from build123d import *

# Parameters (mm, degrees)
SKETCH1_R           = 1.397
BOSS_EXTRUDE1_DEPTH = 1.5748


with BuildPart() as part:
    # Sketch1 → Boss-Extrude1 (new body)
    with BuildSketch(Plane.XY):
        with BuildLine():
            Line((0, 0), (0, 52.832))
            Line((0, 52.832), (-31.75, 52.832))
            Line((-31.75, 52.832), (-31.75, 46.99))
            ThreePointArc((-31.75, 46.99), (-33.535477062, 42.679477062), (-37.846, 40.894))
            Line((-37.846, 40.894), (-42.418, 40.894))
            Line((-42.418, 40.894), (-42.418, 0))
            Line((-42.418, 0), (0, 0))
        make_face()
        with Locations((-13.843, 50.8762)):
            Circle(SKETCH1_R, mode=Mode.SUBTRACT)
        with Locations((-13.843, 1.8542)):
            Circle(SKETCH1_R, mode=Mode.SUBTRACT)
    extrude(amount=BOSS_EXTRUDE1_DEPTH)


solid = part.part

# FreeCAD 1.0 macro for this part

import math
import FreeCAD as App
import Part
import Sketcher

V = App.Vector
Q = App.Units.Quantity

doc = App.newDocument("Part")
body = doc.addObject("PartDesign::Body", "Body")

# Sketch on XY plane
sketch1 = doc.addObject("Sketcher::SketchObject", "Sketch")
body.addObject(sketch1)
sketch1.AttachmentSupport = (doc.XY_Plane, [""])
sketch1.MapMode = "FlatFace"
sketch1.addGeometry([
    Part.LineSegment(V(0, 0, 0), V(0, 52.832, 0)),  # 0
    Part.LineSegment(V(0, 52.832, 0), V(-31.75, 52.832, 0)),  # 1
    Part.LineSegment(V(-31.75, 52.832, 0), V(-31.75, 46.99, 0)),  # 2
    Part.ArcOfCircle(Part.Circle(V(-37.846, 46.99, 0), V(0, 0, 1), 6.096), math.radians(-90), math.radians(0)),  # 3
    Part.LineSegment(V(-37.846, 40.894, 0), V(-42.418, 40.894, 0)),  # 4
    Part.LineSegment(V(-42.418, 40.894, 0), V(-42.418, 0, 0)),  # 5
    Part.LineSegment(V(-42.418, 0, 0), V(0, 0, 0)),  # 6
    Part.Circle(V(-13.843, 1.8542, 0), V(0, 0, 1), 1.397),  # 7
    Part.Circle(V(-13.843, 50.8762, 0), V(0, 0, 1), 1.397),  # 8
], False)
sketch1.addConstraint([
    Sketcher.Constraint("Coincident", 0, 2, 1, 1),
    Sketcher.Constraint("Coincident", 1, 2, 2, 1),
    Sketcher.Constraint("Tangent", 2, 2, 3, 2),
    Sketcher.Constraint("Tangent", 3, 1, 4, 1),
    Sketcher.Constraint("Coincident", 4, 2, 5, 1),
    Sketcher.Constraint("Coincident", 5, 2, 6, 1),
    Sketcher.Constraint("Coincident", 6, 2, 0, 1),
    Sketcher.Constraint("Vertical", 0),
    Sketcher.Constraint("Horizontal", 1),
    Sketcher.Constraint("Vertical", 2),
    Sketcher.Constraint("Horizontal", 4),
    Sketcher.Constraint("Vertical", 5),
    Sketcher.Constraint("Horizontal", 6),
    Sketcher.Constraint("Coincident", 6, 2, -1, 1),
    Sketcher.Constraint("Equal", 7, 8),
    Sketcher.Constraint("Vertical", 7, 3, 8, 3),
    Sketcher.Constraint("Diameter", 7, Q("0.11 in")),
    Sketcher.Constraint("Radius", 3, Q("0.24 in")),
    Sketcher.Constraint("DistanceX", 1, 2, 1, 1, Q("1.25 in")),
    Sketcher.Constraint("DistanceX", 4, 2, 4, 1, Q("0.18 in")),
    Sketcher.Constraint("DistanceY", 0, 1, 0, 2, Q("2.08 in")),
    Sketcher.Constraint("DistanceY", 2, 2, 2, 1, Q("0.23 in")),
    Sketcher.Constraint("DistanceY", 7, 3, 8, 3, Q("1.93 in")),
    Sketcher.Constraint("DistanceX", 7, 3, -1, 1, Q("0.545 in")),
    Sketcher.Constraint("DistanceY", -1, 1, 7, 3, Q("0.073 in")),
])
pad1 = doc.addObject("PartDesign::Pad", "Pad")
body.addObject(pad1)
pad1.Profile = sketch1
pad1.Length = Q("0.062 in")

doc.recompute()
